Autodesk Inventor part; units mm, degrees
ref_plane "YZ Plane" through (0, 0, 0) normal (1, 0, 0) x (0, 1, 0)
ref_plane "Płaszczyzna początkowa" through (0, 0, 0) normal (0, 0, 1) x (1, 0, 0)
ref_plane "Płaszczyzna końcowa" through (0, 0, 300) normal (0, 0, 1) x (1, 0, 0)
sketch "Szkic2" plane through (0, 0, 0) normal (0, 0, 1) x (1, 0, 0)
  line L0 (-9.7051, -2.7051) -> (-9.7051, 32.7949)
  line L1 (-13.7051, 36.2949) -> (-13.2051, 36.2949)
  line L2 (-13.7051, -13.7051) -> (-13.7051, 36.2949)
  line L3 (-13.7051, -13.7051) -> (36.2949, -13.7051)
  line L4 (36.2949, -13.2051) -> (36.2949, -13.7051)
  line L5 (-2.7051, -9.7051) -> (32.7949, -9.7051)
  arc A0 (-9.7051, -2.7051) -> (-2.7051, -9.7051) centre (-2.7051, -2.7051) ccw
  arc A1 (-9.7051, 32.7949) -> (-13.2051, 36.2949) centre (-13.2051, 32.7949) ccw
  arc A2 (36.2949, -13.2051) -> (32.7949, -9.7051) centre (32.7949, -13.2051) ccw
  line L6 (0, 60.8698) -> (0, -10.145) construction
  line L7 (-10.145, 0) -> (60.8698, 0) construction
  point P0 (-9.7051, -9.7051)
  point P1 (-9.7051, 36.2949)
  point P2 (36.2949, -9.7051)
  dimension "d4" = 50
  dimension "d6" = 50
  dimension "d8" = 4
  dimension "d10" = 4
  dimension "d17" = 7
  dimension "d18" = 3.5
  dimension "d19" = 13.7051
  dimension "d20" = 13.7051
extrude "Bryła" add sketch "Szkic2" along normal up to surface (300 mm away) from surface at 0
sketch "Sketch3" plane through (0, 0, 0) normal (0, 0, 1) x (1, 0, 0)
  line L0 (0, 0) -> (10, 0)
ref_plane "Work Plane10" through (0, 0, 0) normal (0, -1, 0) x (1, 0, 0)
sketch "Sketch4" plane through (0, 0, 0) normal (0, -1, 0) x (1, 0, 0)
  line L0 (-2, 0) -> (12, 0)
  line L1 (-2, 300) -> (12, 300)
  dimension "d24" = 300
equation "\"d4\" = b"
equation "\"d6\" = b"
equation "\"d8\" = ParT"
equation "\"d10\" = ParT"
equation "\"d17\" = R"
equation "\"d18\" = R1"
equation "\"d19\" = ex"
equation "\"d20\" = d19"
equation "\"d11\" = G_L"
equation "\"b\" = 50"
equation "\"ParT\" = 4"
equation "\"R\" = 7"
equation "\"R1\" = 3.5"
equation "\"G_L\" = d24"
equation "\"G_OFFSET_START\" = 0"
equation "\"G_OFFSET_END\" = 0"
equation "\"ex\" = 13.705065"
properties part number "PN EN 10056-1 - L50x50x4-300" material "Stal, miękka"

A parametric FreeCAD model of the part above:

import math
import FreeCAD as App
import Part
import Sketcher

doc = App.newDocument("Part")
params = doc.addObject("Spreadsheet::Sheet", "Params")
for row, (alias, value) in enumerate([
    ("sketch1_radius", "7 mm"),
    ("sketch1_radius2", "3.5 mm"),
    ("sketch1_width", "50 mm"),
    ("pad1_length", "300 mm"),
], start=1):
    params.set(f"A{row}", alias)
    params.set(f"B{row}", "=" + value)
    params.setAlias(f"B{row}", alias)

body = doc.addObject("PartDesign::Body", "Body")

sketch1 = doc.addObject("Sketcher::SketchObject", "Sketch")
body.addObject(sketch1)
sketch1.AttachmentSupport = (doc.XY_Plane, [""])
sketch1.MapMode = "FlatFace"
sketch1.addGeometry([
    Part.ArcOfCircle(Part.Circle(App.Vector(-2.7051, -2.7051, 0), App.Vector(0, 0, 1), 7), math.radians(180), math.radians(270)),
    Part.LineSegment(App.Vector(-9.7051, -2.7051, 0), App.Vector(-9.7051, 32.7949, 0)),
    Part.ArcOfCircle(Part.Circle(App.Vector(-13.2051, 32.7949, 0), App.Vector(0, 0, 1), 3.5), math.radians(0), math.radians(90)),
    Part.LineSegment(App.Vector(-13.2051, 36.2949, 0), App.Vector(-13.7051, 36.2949, 0)),
    Part.LineSegment(App.Vector(-13.7051, 36.2949, 0), App.Vector(-13.7051, -13.7051, 0)),
    Part.LineSegment(App.Vector(-13.7051, -13.7051, 0), App.Vector(36.2949, -13.7051, 0)),
    Part.LineSegment(App.Vector(36.2949, -13.7051, 0), App.Vector(36.2949, -13.2051, 0)),
    Part.ArcOfCircle(Part.Circle(App.Vector(32.7949, -13.2051, 0), App.Vector(0, 0, 1), 3.5), math.radians(0), math.radians(90)),
    Part.LineSegment(App.Vector(32.7949, -9.7051, 0), App.Vector(-2.7051, -9.7051, 0)),
], False)
sketch1.addConstraint([
    Sketcher.Constraint("Tangent", 0, 1, 1, 1),
    Sketcher.Constraint("Tangent", 1, 2, 2, 1),
    Sketcher.Constraint("Tangent", 2, 2, 3, 1),
    Sketcher.Constraint("Coincident", 3, 2, 4, 1),
    Sketcher.Constraint("Coincident", 4, 2, 5, 1),
    Sketcher.Constraint("Coincident", 5, 2, 6, 1),
    Sketcher.Constraint("Tangent", 6, 2, 7, 1),
    Sketcher.Constraint("Tangent", 7, 2, 8, 1),
    Sketcher.Constraint("Tangent", 8, 2, 0, 2),
    Sketcher.Constraint("Vertical", 1),
    Sketcher.Constraint("Horizontal", 3),
    Sketcher.Constraint("Vertical", 4),
    Sketcher.Constraint("Horizontal", 5),
    Sketcher.Constraint("Vertical", 6),
    Sketcher.Constraint("Horizontal", 8),
    Sketcher.Constraint("Equal", 2, 7),
    Sketcher.Constraint("Equal", 8, 1),
    Sketcher.Constraint("Equal", 5, 4),
    Sketcher.Constraint("Radius", 0, 7.0),
    Sketcher.Constraint("Radius", 2, 3.5),
    Sketcher.Constraint("DistanceX", 5, 1, 5, 2, 50.0),
    Sketcher.Constraint("DistanceX", 3, 2, 1, 2, 4.0),
    Sketcher.Constraint("DistanceX", 3, 2, -1, 1, 13.705),
    Sketcher.Constraint("DistanceY", 4, 2, -1, 1, 13.705),
])
sketch1.setExpression("Constraints[18]", "Params.sketch1_radius")
sketch1.setExpression("Constraints[19]", "Params.sketch1_radius2")
sketch1.setExpression("Constraints[20]", "Params.sketch1_width")
pad1 = doc.addObject("PartDesign::Pad", "Pad")
body.addObject(pad1)
pad1.Profile = sketch1
pad1.setExpression("Length", "Params.pad1_length")

doc.recompute()
